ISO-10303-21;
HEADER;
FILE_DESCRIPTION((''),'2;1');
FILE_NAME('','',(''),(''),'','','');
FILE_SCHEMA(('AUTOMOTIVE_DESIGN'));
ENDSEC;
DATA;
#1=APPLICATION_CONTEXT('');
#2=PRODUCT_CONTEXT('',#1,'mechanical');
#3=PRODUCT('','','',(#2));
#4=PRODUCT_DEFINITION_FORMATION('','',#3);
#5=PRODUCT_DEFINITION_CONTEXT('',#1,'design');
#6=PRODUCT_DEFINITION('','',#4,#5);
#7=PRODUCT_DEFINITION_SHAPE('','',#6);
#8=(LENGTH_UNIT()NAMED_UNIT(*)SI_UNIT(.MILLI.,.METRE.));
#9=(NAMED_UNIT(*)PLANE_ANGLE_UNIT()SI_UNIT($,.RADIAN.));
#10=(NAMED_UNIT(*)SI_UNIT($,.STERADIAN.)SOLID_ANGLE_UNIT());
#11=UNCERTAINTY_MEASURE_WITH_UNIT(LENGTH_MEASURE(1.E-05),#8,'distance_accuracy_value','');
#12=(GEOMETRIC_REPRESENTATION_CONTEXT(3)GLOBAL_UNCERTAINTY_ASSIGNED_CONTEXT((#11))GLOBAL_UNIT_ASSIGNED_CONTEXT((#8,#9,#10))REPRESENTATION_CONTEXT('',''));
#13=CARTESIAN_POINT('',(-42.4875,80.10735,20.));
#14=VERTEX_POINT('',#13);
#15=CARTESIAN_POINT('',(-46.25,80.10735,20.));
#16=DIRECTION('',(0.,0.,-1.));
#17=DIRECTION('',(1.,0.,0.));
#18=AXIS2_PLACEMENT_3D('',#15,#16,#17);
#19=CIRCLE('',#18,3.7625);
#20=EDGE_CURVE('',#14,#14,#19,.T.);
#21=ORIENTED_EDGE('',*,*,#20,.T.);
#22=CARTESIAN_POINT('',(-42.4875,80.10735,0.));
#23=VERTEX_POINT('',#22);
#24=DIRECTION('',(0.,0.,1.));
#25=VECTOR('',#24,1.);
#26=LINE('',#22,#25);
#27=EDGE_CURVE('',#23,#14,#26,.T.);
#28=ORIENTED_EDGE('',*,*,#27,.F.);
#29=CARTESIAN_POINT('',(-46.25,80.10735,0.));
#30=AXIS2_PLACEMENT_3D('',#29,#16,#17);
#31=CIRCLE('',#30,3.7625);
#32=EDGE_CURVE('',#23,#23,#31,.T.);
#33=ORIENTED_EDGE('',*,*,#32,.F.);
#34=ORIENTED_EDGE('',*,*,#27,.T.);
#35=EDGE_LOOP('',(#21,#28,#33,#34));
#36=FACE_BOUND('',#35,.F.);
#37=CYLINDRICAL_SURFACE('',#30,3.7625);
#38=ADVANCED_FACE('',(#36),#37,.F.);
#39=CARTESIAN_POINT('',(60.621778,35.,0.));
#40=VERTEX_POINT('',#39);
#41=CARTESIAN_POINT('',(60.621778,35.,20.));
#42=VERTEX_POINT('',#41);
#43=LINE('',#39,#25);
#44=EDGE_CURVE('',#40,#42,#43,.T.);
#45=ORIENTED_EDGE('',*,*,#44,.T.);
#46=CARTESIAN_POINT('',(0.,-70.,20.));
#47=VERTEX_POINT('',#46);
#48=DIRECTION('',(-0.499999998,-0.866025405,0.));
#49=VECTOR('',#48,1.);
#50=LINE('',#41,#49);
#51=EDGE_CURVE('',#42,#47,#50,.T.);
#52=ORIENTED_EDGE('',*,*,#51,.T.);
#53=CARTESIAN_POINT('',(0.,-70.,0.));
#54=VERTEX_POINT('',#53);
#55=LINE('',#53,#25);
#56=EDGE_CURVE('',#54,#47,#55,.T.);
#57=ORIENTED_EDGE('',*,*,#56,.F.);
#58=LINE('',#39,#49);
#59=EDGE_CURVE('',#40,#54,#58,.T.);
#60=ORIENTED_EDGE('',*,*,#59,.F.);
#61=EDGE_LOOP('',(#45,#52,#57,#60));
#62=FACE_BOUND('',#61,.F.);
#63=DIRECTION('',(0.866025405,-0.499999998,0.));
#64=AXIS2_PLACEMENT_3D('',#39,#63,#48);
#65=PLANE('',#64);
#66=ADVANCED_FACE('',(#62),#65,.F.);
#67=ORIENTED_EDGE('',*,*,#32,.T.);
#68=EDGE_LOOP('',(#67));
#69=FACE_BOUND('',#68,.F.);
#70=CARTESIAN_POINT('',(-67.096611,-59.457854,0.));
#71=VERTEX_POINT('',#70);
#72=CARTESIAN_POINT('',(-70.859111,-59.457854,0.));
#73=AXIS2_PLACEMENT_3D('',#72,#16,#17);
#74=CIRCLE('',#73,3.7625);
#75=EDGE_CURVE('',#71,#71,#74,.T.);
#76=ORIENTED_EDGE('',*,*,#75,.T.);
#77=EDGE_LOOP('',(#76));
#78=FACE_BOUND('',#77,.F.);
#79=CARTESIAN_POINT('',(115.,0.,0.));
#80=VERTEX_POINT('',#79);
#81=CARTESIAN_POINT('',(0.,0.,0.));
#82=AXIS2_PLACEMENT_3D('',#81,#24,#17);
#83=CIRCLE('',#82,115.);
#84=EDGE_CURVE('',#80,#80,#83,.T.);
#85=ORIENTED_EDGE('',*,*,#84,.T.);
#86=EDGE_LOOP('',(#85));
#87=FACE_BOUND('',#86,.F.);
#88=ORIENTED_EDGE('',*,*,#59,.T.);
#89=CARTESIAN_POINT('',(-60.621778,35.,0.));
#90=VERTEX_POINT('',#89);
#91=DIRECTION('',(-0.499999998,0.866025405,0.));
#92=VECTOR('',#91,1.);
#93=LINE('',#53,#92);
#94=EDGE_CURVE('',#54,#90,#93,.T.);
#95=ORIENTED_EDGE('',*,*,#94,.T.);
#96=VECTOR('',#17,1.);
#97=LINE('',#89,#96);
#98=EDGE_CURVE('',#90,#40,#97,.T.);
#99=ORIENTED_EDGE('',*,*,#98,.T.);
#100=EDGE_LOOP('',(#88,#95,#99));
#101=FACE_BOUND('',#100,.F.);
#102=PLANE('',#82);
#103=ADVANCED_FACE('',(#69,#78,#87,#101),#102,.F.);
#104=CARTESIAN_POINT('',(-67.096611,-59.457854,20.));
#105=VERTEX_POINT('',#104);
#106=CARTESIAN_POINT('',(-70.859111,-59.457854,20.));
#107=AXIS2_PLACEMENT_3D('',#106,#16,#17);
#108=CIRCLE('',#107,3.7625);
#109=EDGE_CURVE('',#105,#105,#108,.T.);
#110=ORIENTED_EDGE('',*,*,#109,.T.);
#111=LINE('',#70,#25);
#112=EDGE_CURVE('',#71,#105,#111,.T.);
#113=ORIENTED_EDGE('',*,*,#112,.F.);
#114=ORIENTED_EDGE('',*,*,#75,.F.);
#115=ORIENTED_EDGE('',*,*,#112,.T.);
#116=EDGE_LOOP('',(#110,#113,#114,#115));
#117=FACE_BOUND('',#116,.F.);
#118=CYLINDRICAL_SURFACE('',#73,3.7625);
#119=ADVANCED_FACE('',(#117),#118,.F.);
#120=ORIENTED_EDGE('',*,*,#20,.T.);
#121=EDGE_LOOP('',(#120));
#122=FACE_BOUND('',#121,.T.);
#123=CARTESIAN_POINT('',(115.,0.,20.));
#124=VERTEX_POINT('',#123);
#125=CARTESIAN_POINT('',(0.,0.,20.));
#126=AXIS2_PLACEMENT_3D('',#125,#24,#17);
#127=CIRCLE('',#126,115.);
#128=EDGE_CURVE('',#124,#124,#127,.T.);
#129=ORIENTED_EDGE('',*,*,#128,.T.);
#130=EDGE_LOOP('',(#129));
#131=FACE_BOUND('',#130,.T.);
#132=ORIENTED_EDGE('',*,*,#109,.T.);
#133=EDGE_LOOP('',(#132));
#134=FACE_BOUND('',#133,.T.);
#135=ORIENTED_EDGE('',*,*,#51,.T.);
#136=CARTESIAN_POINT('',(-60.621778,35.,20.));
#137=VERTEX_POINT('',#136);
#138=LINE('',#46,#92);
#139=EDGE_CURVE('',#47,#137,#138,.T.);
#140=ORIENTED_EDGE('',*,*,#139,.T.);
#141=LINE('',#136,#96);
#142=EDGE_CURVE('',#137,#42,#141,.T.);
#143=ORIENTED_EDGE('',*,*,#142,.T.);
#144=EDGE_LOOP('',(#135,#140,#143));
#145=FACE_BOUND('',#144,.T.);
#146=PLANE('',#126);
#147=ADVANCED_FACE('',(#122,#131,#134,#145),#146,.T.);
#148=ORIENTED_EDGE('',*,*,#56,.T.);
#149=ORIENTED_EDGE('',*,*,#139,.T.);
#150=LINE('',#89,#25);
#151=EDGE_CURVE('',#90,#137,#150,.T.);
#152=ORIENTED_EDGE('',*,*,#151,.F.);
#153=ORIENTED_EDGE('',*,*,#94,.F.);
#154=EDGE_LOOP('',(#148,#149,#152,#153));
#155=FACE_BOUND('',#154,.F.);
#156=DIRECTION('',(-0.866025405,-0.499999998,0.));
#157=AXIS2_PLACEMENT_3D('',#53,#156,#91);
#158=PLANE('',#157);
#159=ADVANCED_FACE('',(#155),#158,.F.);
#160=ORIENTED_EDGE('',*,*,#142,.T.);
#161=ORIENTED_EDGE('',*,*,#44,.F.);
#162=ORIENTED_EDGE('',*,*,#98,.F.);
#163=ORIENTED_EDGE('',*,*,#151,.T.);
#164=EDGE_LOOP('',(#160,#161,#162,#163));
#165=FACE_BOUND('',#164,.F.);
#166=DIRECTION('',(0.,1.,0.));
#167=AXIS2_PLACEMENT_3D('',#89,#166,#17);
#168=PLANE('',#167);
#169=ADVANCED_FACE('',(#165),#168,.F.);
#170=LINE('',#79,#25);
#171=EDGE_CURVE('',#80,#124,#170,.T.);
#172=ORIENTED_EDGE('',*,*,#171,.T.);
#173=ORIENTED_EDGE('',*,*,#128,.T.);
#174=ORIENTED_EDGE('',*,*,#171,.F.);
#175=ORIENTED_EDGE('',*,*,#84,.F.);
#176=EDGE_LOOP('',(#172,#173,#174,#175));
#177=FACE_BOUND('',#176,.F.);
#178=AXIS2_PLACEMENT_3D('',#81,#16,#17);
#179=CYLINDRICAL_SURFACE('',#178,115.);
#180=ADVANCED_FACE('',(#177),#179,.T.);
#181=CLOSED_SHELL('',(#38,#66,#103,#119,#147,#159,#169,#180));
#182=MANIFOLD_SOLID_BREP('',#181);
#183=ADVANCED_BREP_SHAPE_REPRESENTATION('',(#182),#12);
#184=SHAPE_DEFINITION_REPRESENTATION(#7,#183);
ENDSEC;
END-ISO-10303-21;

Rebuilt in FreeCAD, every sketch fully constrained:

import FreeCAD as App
import Part
import Sketcher

V = App.Vector
Q = App.Units.Quantity


def add_polygon(sketch, points):
    """Adds a closed chain of lines whose ends are joined by coincident constraints."""
    first, n = sketch.GeometryCount, len(points)
    for a, b in zip(points, points[1:] + points[:1]):
        sketch.addGeometry(Part.LineSegment(App.Vector(*a, 0), App.Vector(*b, 0)), False)
    for i in range(n):
        sketch.addConstraint(Sketcher.Constraint("Coincident", first + i, 2, first + (i + 1) % n, 1))

doc = App.newDocument("Part")
body = doc.addObject("PartDesign::Body", "Body")

# Sketch on XY plane
sketch1 = body.newObject("Sketcher::SketchObject", "Sketch")
sketch1.AttachmentSupport = (doc.getObject("XY_Plane"), [""])
sketch1.MapMode = "FlatFace"
sketch1.addGeometry(Part.Circle(V(0, 0, 0), V(0, 0, 1), 115), False)  # 0
add_polygon(sketch1, [(61, 35), (0, -70), (-61, 35)])  # lines 1-3
sketch1.addConstraint([
    Sketcher.Constraint("Horizontal", 3),
    Sketcher.Constraint("Coincident", 0, 3, -1, 1),
    Sketcher.Constraint("PointOnObject", 1, 2, -2),
    Sketcher.Constraint("Equal", 1, 2),
    Sketcher.Constraint("Diameter", 0, 230.0),
    Sketcher.Constraint("Angle", 1, Q("-120 deg")),
    Sketcher.Constraint("DistanceY", 1, 2, -1, 1, 70.0),
    Sketcher.Constraint("DistanceY", -1, 1, 2, 2, 35.0),
])
pad1 = body.newObject("PartDesign::Pad", "Pad")
pad1.Profile = sketch1
pad1.Length = 20

# Sketch on XY plane
sketch2 = body.newObject("Sketcher::SketchObject", "Sketch001")
sketch2.AttachmentSupport = (doc.getObject("XY_Plane"), [""])
sketch2.MapMode = "FlatFace"
sketch2.addGeometry([
    Part.Circle(V(-70.9, -59.5, 0), V(0, 0, 1), 3.8),
    Part.Circle(V(-46.2, 80.1, 0), V(0, 0, 1), 3.8),
], False)
sketch2.addConstraint([
    Sketcher.Constraint("Equal", 0, 1),
    Sketcher.Constraint("Diameter", 0, 7.525),
    Sketcher.Constraint("DistanceX", 1, 3, -1, 1, 46.25),
    Sketcher.Constraint("DistanceX", 0, 3, -1, 1, 70.859111),
    Sketcher.Constraint("DistanceY", -1, 1, 1, 3, 80.10735),
    Sketcher.Constraint("DistanceY", 0, 3, -1, 1, 59.457854),
])
pocket1 = body.newObject("PartDesign::Pocket", "Pocket")
pocket1.Profile = sketch2
pocket1.Length = 25
pocket1.Reversed = True

doc.recompute()
